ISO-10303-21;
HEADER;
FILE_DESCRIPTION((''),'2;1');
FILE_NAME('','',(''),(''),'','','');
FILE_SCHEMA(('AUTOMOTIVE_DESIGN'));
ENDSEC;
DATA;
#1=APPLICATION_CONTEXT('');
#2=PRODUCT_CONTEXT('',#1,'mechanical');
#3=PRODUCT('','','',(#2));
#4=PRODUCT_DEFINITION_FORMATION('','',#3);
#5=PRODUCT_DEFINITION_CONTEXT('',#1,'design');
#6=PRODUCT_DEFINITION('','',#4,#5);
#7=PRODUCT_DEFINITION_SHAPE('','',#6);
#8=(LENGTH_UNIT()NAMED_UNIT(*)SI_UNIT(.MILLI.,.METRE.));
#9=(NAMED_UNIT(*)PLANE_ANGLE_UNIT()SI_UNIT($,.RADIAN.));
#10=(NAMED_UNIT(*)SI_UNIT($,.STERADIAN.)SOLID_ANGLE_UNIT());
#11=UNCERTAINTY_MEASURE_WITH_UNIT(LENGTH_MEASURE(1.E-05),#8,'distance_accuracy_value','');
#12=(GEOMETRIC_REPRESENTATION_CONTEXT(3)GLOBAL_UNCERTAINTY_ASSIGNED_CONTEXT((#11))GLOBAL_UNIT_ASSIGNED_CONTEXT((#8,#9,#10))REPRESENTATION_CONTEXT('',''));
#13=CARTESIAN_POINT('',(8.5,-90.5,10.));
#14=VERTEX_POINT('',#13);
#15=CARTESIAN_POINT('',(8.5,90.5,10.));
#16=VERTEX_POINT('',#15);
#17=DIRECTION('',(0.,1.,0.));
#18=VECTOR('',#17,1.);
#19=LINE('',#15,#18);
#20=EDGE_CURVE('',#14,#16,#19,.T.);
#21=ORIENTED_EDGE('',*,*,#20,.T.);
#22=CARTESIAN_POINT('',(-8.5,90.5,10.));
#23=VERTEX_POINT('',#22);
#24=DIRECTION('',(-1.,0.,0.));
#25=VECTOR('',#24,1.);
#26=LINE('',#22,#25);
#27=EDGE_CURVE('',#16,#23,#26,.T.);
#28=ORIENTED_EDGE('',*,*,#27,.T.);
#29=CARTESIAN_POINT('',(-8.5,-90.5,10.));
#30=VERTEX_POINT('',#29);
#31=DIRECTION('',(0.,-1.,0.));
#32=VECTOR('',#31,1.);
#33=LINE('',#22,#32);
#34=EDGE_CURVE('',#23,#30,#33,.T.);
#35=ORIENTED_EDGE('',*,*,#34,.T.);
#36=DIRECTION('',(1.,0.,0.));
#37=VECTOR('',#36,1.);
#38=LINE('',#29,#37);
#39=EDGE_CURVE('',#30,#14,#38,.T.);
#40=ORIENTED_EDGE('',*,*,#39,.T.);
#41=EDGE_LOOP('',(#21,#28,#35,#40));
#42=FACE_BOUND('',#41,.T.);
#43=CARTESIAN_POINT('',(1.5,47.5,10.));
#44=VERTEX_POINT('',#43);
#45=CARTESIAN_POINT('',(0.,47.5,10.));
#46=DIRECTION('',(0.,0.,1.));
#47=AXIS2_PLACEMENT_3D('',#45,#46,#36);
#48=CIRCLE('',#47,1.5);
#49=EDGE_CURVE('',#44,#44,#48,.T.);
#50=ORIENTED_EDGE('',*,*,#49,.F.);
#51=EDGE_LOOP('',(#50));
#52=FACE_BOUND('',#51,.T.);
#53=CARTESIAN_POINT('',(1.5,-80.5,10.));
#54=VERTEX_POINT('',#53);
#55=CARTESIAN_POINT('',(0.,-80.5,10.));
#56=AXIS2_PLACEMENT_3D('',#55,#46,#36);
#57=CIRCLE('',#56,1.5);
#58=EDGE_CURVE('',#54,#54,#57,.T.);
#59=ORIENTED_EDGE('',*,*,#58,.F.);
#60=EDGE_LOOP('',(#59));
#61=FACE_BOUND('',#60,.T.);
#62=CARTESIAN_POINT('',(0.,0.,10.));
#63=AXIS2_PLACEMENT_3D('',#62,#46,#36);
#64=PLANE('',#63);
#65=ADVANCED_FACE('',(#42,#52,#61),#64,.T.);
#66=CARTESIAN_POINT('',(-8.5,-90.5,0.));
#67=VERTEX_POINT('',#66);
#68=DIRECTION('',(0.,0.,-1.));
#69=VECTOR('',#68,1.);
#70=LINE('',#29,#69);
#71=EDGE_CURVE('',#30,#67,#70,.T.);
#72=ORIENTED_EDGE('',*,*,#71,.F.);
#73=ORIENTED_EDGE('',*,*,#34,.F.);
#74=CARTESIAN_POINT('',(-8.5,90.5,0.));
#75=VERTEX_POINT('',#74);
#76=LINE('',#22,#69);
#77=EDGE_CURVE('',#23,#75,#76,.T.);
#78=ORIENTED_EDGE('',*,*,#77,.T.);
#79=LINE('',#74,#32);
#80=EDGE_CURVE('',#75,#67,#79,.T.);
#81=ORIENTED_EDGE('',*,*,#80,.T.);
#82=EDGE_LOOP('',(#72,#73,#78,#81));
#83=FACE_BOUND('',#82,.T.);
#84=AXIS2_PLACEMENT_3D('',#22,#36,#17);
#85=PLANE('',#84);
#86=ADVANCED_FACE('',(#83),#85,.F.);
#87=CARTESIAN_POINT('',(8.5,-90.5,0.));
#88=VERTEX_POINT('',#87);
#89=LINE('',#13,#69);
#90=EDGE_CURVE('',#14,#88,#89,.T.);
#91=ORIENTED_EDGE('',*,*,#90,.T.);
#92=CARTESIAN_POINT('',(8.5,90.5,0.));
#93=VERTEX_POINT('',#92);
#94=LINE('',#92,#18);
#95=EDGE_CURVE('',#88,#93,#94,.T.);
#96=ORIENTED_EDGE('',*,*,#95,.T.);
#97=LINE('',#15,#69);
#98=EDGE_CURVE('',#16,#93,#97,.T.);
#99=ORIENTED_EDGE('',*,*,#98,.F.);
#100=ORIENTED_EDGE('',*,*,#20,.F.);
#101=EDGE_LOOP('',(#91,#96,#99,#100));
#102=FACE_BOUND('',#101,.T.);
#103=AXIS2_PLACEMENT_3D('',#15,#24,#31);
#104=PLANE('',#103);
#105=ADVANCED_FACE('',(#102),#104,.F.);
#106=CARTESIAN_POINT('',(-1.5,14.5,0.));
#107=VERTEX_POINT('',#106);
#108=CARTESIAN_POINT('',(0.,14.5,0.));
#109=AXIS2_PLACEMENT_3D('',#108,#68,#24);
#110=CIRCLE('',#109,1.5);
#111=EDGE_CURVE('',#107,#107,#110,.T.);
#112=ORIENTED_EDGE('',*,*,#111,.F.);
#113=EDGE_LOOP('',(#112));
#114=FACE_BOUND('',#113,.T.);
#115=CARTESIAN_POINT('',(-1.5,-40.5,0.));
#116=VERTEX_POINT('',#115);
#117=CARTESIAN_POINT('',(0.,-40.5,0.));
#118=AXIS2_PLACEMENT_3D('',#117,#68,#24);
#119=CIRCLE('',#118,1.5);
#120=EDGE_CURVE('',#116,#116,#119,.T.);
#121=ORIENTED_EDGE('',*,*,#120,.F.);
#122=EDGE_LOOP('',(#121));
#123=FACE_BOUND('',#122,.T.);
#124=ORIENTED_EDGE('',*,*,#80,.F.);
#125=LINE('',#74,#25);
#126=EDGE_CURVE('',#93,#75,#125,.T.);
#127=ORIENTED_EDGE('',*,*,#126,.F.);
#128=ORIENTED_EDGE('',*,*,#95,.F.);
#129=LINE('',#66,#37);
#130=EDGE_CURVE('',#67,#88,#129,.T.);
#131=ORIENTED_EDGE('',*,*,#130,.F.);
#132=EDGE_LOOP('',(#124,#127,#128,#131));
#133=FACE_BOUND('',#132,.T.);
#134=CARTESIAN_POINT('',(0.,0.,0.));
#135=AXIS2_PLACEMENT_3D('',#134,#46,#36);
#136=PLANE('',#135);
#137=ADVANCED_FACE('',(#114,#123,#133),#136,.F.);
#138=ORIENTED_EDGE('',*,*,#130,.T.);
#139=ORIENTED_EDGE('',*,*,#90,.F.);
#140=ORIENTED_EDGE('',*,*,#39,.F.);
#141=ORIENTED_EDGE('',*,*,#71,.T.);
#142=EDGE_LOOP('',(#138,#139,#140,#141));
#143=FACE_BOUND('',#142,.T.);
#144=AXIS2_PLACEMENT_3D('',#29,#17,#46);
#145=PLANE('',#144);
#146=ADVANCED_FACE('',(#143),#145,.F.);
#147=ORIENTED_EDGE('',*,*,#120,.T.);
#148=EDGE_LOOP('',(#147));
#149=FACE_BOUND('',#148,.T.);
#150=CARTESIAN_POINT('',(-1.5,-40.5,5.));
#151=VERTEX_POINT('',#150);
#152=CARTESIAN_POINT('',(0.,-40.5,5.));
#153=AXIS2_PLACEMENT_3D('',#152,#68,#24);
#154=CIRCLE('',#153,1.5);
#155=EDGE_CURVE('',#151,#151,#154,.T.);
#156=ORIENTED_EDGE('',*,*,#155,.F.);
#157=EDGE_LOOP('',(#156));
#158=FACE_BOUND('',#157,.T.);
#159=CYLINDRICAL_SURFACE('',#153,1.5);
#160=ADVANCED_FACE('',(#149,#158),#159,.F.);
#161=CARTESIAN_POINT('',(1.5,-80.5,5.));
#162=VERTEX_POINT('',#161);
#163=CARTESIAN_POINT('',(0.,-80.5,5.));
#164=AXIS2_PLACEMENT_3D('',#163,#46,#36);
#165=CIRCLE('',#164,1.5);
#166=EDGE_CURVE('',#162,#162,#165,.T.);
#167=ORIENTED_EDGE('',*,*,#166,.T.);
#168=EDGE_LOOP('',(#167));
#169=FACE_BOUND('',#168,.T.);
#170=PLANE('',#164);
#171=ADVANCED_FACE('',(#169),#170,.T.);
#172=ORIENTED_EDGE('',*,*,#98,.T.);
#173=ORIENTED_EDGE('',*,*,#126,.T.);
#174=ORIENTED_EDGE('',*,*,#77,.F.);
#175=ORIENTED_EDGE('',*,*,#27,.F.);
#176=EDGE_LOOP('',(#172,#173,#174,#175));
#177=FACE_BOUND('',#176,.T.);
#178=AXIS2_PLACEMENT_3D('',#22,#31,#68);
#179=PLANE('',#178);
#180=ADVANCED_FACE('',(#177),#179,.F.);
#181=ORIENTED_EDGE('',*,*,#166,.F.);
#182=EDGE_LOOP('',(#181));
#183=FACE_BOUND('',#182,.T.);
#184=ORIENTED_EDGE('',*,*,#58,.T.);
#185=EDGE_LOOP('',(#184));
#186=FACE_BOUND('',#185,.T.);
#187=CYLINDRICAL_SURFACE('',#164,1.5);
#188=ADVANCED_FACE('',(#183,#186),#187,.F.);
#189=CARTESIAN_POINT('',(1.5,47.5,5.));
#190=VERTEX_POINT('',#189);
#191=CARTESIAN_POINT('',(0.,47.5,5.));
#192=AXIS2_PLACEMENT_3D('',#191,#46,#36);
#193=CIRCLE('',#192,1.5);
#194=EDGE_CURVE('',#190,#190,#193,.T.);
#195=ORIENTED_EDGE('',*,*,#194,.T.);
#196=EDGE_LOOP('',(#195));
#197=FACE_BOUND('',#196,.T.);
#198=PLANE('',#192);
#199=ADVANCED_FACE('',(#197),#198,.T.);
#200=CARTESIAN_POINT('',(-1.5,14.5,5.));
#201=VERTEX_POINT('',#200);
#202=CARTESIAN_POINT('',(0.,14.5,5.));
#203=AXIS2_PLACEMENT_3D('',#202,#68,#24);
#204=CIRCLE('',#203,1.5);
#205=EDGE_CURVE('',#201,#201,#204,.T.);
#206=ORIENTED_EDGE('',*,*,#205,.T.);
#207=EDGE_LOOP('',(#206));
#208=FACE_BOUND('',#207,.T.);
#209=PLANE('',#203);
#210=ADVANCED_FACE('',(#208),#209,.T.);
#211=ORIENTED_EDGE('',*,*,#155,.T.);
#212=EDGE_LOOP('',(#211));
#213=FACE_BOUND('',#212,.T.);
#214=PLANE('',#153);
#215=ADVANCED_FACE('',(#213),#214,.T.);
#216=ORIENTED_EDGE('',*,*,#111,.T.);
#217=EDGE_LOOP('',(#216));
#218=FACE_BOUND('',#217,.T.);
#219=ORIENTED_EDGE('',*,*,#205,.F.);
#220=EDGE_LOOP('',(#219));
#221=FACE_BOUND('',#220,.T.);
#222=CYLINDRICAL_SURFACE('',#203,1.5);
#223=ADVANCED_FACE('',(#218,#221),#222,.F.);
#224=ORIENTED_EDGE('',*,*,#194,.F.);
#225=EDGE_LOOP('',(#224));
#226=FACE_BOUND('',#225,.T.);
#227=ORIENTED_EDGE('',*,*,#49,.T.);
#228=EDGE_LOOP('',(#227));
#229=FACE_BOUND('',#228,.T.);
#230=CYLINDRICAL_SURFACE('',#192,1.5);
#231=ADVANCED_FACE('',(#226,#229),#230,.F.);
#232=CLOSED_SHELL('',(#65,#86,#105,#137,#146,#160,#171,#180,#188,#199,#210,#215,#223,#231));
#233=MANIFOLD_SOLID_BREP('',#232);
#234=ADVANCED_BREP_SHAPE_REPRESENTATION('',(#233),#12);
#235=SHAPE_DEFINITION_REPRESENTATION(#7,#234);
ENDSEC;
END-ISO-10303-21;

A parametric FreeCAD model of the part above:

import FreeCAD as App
import Part
import Sketcher

V = App.Vector
Q = App.Units.Quantity


def add_polygon(sketch, points):
    """Adds a closed chain of lines whose ends are joined by coincident constraints."""
    first, n = sketch.GeometryCount, len(points)
    for a, b in zip(points, points[1:] + points[:1]):
        sketch.addGeometry(Part.LineSegment(App.Vector(*a, 0), App.Vector(*b, 0)), False)
    for i in range(n):
        sketch.addConstraint(Sketcher.Constraint("Coincident", first + i, 2, first + (i + 1) % n, 1))

doc = App.newDocument("Part")
params = doc.addObject("Spreadsheet::Sheet", "Params")
for row, (alias, value) in enumerate([
    ("sketch1_width", "17 mm"),
    ("sketch1_height", "181 mm"),
    ("pad1_length", "10 mm"),
    ("sketch2_diameter", "3 mm"),
    ("pocket1_length", "5 mm"),
    ("sketch3_diameter", "3 mm"),
    ("pocket2_length", "5 mm"),
], start=1):
    params.set(f"A{row}", alias)
    params.set(f"B{row}", "=" + value)
    params.setAlias(f"B{row}", alias)

body = doc.addObject("PartDesign::Body", "Body")

# Sketch on XY plane
sketch1 = body.newObject("Sketcher::SketchObject", "Sketch")
sketch1.AttachmentSupport = (doc.getObject("XY_Plane"), [""])
sketch1.MapMode = "FlatFace"
add_polygon(sketch1, [(-8, 90), (-8, -90), (8, -90), (8, 90)])  # lines 0-3
sketch1.addConstraint(Sketcher.Constraint("Vertical", 0))
sketch1.addConstraint(Sketcher.Constraint("Horizontal", 1))
sketch1.addConstraint(Sketcher.Constraint("Vertical", 2))
sketch1.addConstraint(Sketcher.Constraint("Horizontal", 3))
sketch1.addConstraint(Sketcher.Constraint("Symmetric", 0, 2, 2, 2, -1, 1))
sketch1.addConstraint(Sketcher.Constraint("DistanceX", 1, 1, 1, 2, Q("17 mm")))
sketch1.addConstraint(Sketcher.Constraint("DistanceY", 0, 2, 0, 1, Q("181 mm")))
sketch1.setExpression("Constraints[9]", "Params.sketch1_width")
sketch1.setExpression("Constraints[10]", "Params.sketch1_height")
pad1 = body.newObject("PartDesign::Pad", "Pad")
pad1.Profile = sketch1
pad1.setExpression("Length", "Params.pad1_length")

# Sketch on XY plane
sketch2 = body.newObject("Sketcher::SketchObject", "Sketch001")
sketch2.AttachmentSupport = (doc.getObject("XY_Plane"), [""])
sketch2.MapMode = "FlatFace"
sketch2.AttachmentOffset = App.Placement(V(0, 0, 10), App.Rotation())
sketch2.addGeometry(Part.Circle(V(0, 47.5, 0), V(0, 0, 1), 1.5), False)
sketch2.addGeometry(Part.Circle(V(0, -80.5, 0), V(0, 0, 1), 1.5), False)
sketch2.addConstraint(Sketcher.Constraint("Equal", 0, 1))
sketch2.addConstraint(Sketcher.Constraint("PointOnObject", 0, 3, -2))
sketch2.addConstraint(Sketcher.Constraint("PointOnObject", 1, 3, -2))
sketch2.addConstraint(Sketcher.Constraint("Diameter", 0, Q("3 mm")))
sketch2.addConstraint(Sketcher.Constraint("DistanceY", 1, 3, 0, 3, Q("128 mm")))
sketch2.addConstraint(Sketcher.Constraint("DistanceY", -1, 1, 0, 3, Q("47.5 mm")))
sketch2.setExpression("Constraints[3]", "Params.sketch2_diameter")
pocket1 = body.newObject("PartDesign::Pocket", "Pocket")
pocket1.Profile = sketch2
pocket1.setExpression("Length", "Params.pocket1_length")

# Sketch on XY plane
sketch3 = body.newObject("Sketcher::SketchObject", "Sketch002")
sketch3.AttachmentSupport = (doc.getObject("XY_Plane"), [""])
sketch3.MapMode = "FlatFace"
sketch3.addGeometry(Part.Circle(V(0, 14.5, 0), V(0, 0, 1), 1.5), False)
sketch3.addGeometry(Part.Circle(V(0, -40.5, 0), V(0, 0, 1), 1.5), False)
sketch3.addConstraint(Sketcher.Constraint("Equal", 0, 1))
sketch3.addConstraint(Sketcher.Constraint("PointOnObject", 0, 3, -2))
sketch3.addConstraint(Sketcher.Constraint("PointOnObject", 1, 3, -2))
sketch3.addConstraint(Sketcher.Constraint("Diameter", 0, Q("3 mm")))
sketch3.addConstraint(Sketcher.Constraint("DistanceY", 1, 3, 0, 3, Q("55 mm")))
sketch3.addConstraint(Sketcher.Constraint("DistanceY", -1, 1, 0, 3, Q("14.5 mm")))
sketch3.setExpression("Constraints[3]", "Params.sketch3_diameter")
pocket2 = body.newObject("PartDesign::Pocket", "Pocket001")
pocket2.Profile = sketch3
pocket2.setExpression("Length", "Params.pocket2_length")
pocket2.Reversed = True

doc.recompute()
